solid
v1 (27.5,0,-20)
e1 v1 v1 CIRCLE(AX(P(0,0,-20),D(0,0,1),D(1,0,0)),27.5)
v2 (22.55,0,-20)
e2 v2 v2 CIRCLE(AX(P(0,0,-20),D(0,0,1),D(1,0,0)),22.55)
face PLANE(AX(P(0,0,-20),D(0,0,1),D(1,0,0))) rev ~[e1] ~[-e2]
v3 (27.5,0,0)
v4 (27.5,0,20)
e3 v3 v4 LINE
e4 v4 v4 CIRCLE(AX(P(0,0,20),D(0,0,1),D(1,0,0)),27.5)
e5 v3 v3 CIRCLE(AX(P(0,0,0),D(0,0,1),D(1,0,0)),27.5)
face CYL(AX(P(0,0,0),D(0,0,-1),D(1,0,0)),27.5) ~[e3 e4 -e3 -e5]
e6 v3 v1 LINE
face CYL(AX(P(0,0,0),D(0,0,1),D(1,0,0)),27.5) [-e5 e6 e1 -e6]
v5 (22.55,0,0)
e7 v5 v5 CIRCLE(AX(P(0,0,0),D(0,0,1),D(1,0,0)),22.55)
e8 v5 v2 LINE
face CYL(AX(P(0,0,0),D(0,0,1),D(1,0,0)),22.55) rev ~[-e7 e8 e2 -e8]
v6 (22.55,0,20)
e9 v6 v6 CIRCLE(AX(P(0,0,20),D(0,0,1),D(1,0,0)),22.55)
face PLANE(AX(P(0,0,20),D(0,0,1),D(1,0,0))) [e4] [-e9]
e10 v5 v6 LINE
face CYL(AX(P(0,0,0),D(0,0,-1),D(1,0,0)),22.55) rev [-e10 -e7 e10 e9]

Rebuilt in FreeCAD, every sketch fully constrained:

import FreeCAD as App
import Part
import Sketcher
Q = App.Units.Quantity

doc = App.newDocument("Part")
params = doc.addObject("Spreadsheet::Sheet", "Params")
for row, (alias, value) in enumerate([
    ("sketch1_diameter", "55 mm"),
    ("sketch1_diameter2", "45.1 mm"),
    ("pad1_length", "40 mm"),
], start=1):
    params.set(f"A{row}", alias)
    params.set(f"B{row}", "=" + value)
    params.setAlias(f"B{row}", alias)

body = doc.addObject("PartDesign::Body", "Body")

# Sketch on XY plane
sketch1 = body.newObject("Sketcher::SketchObject", "Sketch")
sketch1.AttachmentSupport = (doc.getObject("XY_Plane"), [""])
sketch1.MapMode = "FlatFace"
sketch1.addGeometry([
    Part.Circle(App.Vector(0, 0, 0), App.Vector(0, 0, 1), 28),
    Part.Circle(App.Vector(0, 0, 0), App.Vector(0, 0, 1), 23),
], False)
sketch1.addConstraint([
    Sketcher.Constraint("Coincident", 0, 3, -1, 1),
    Sketcher.Constraint("Coincident", 1, 3, -1, 1),
    Sketcher.Constraint("Diameter", 0, Q("55 mm")),
    Sketcher.Constraint("Diameter", 1, Q("45.1 mm")),
])
sketch1.setExpression("Constraints[2]", "Params.sketch1_diameter")
sketch1.setExpression("Constraints[3]", "Params.sketch1_diameter2")
pad1 = body.newObject("PartDesign::Pad", "Pad")
pad1.Profile = sketch1
pad1.setExpression("Length", "Params.pad1_length")
pad1.Midplane = True

doc.recompute()
